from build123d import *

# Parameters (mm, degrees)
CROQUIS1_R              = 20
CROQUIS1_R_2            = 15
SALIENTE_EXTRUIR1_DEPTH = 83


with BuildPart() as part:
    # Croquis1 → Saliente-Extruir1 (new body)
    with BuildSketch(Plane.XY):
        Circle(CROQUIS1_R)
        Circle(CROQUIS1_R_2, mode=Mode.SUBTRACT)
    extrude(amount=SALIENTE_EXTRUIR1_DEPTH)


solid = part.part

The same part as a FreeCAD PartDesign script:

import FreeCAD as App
import Part
import Sketcher
from FreeCAD import Vector

doc = App.newDocument("Part")
params = doc.addObject("Spreadsheet::Sheet", "Params")
for row, (alias, value) in enumerate([
    ("sketch1_diameter", "40 mm"),
    ("sketch1_diameter2", "30 mm"),
    ("pad1_length", "83 mm"),
], start=1):
    params.set(f"A{row}", alias)
    params.set(f"B{row}", "=" + value)
    params.setAlias(f"B{row}", alias)

body = doc.addObject("PartDesign::Body", "Body")

sketch1 = body.newObject("Sketcher::SketchObject", "Sketch")
sketch1.AttachmentSupport = (doc.getObject("XY_Plane"), [""])
sketch1.MapMode = "FlatFace"
sketch1.addGeometry(Part.Circle(Vector(0, 0, 0), Vector(0, 0, 1), 20), False)
sketch1.addGeometry(Part.Circle(Vector(0, 0, 0), Vector(0, 0, 1), 15), False)
sketch1.addConstraint(Sketcher.Constraint("Coincident", 0, 3, -1, 1))
sketch1.addConstraint(Sketcher.Constraint("Coincident", 1, 3, -1, 1))
sketch1.addConstraint(Sketcher.Constraint("Diameter", 0, 40.0))
sketch1.addConstraint(Sketcher.Constraint("Diameter", 1, 30.0))
sketch1.setExpression("Constraints[2]", "Params.sketch1_diameter")
sketch1.setExpression("Constraints[3]", "Params.sketch1_diameter2")
pad1 = body.newObject("PartDesign::Pad", "Pad")
pad1.Profile = sketch1
pad1.setExpression("Length", "Params.pad1_length")

doc.recompute()
